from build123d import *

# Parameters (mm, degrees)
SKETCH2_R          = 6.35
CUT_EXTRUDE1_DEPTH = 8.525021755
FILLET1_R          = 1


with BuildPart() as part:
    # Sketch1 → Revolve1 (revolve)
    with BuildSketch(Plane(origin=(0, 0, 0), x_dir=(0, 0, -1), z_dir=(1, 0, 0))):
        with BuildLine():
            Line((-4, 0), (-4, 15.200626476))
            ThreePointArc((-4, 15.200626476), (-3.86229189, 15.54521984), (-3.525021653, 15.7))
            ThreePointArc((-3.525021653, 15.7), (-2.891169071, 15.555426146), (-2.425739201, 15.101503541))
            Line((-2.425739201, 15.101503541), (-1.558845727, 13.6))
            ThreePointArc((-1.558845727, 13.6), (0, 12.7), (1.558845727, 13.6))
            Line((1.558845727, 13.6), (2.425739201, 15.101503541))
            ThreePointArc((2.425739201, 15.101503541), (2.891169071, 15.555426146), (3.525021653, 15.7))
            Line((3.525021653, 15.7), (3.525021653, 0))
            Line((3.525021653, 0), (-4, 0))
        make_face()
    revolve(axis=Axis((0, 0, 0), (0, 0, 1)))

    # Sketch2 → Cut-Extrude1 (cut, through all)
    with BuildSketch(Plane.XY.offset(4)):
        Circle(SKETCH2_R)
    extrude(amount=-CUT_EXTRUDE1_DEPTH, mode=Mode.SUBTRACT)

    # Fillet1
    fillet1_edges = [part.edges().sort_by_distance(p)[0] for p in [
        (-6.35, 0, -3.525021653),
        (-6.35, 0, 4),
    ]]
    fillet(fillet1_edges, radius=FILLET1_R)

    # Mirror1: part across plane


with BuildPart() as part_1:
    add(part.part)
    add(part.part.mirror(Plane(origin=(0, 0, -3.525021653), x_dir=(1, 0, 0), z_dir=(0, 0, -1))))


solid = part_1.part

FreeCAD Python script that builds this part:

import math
import FreeCAD as App
import Part
import Sketcher
from FreeCAD import Vector
Q = App.Units.Quantity


def edges_at(feature, points):
    """Names of the edges that pass closest to the given points."""
    edges = feature.Shape.Edges
    near = lambda p: min(range(len(edges)), key=lambda i: edges[i].distToShape(Part.Vertex(*p))[0])
    return sorted({f"Edge{near(p) + 1}" for p in points})

doc = App.newDocument("Part")
body = doc.addObject("PartDesign::Body", "Body")

# Sketch on YZ plane
sketch1 = body.newObject("Sketcher::SketchObject", "Sketch")
sketch1.AttachmentSupport = (doc.getObject("YZ_Plane"), [""])
sketch1.MapMode = "FlatFace"
sketch1.addGeometry([
    Part.LineSegment(Vector(15.200626, 4, 0), Vector(0, 4, 0)),  # 0
    Part.LineSegment(Vector(0, 4, 0), Vector(0, -3.525022, 0)),  # 1
    Part.LineSegment(Vector(0, -3.525022, 0), Vector(15.7, -3.525022, 0)),  # 2
    Part.ArcOfCircle(Part.Circle(Vector(14.501504, -3.46497, 0), Vector(0, 0, 1), 1.2), math.radians(-2.868468), math.radians(60)),  # 3
    Part.LineSegment(Vector(15.101504, -2.425739, 0), Vector(13.6, -1.558846, 0)),  # 4
    Part.ArcOfCircle(Part.Circle(Vector(14.5, 0, 0), Vector(0, 0, 1), 1.8), math.radians(120), math.radians(240)),  # 5
    Part.LineSegment(Vector(13.6, 1.558846, 0), Vector(15.101504, 2.425739, 0)),  # 6
    Part.ArcOfCircle(Part.Circle(Vector(14.501504, 3.46497, 0), Vector(0, 0, 1), 1.2), math.radians(-60), math.radians(2.868468)),  # 7
    Part.ArcOfCircle(Part.Circle(Vector(15.200626, 3.5, 0), Vector(0, 0, 1), 0.5), math.radians(2.868468), math.radians(90)),  # 8
], False)
sketch1.addConstraint([
    Sketcher.Constraint("Coincident", 0, 2, 1, 1),
    Sketcher.Constraint("Coincident", 1, 2, 2, 1),
    Sketcher.Constraint("Coincident", 2, 2, 3, 1),
    Sketcher.Constraint("Tangent", 3, 2, 4, 1),
    Sketcher.Constraint("Tangent", 4, 2, 5, 2),
    Sketcher.Constraint("Tangent", 5, 1, 6, 1),
    Sketcher.Constraint("Tangent", 6, 2, 7, 1),
    Sketcher.Constraint("Tangent", 7, 2, 8, 1),
    Sketcher.Constraint("Tangent", 8, 2, 0, 1),
    Sketcher.Constraint("Horizontal", 0),
    Sketcher.Constraint("Vertical", 1),
    Sketcher.Constraint("Horizontal", 2),
    Sketcher.Constraint("Equal", 3, 7),
    Sketcher.Constraint("Symmetric", 3, 3, 7, 3, -1),
    Sketcher.Constraint("PointOnObject", 5, 3, -1),
    Sketcher.Constraint("PointOnObject", 0, 2, -2),
    Sketcher.Constraint("Vertical", 2, 2, 7, 2),
    Sketcher.Constraint("Radius", 3, 1.2),
    Sketcher.Constraint("Radius", 5, 1.8),
    Sketcher.Constraint("Radius", 8, 0.5),
    Sketcher.Constraint("Angle", 4, Q("150 deg")),
    Sketcher.Constraint("DistanceX", 2, 1, 2, 2, 15.7),
    Sketcher.Constraint("DistanceY", -1, 1, 0, 2, 4.0),
    Sketcher.Constraint("DistanceX", -1, 1, 5, 3, 14.5),
])
revolution = body.newObject("PartDesign::Revolution", "Revolution")
revolution.Profile = sketch1
revolution.ReferenceAxis = (sketch1, ["V_Axis"])
revolution.Angle = 360

# Sketch on XY plane
sketch2 = body.newObject("Sketcher::SketchObject", "Sketch001")
sketch2.AttachmentSupport = (doc.getObject("XY_Plane"), [""])
sketch2.MapMode = "FlatFace"
sketch2.AttachmentOffset = App.Placement(Vector(0, 0, 4), App.Rotation())
sketch2.addGeometry(Part.Circle(Vector(0, 0, 0), Vector(0, 0, 1), 6.35), False)
sketch2.addConstraint([
    Sketcher.Constraint("Coincident", 0, 3, -1, 1),
    Sketcher.Constraint("Diameter", 0, 12.7),
])
pocket1 = body.newObject("PartDesign::Pocket", "Pocket")
pocket1.Profile = sketch2
pocket1.Type = "ThroughAll"
doc.recompute()

fillet = body.newObject("PartDesign::Fillet", "Fillet")
fillet.Base = (pocket1, edges_at(pocket1, [(-6.35, 0, -3.525), (-6.35, 0, 4)]))
fillet.Radius = 1
body2 = doc.addObject("PartDesign::Body", "Body001")
doc.recompute()

body2.BaseFeature = body
doc.recompute()

mirroring = doc.addObject("Part::Mirroring", "Mirroring")
mirroring.Source = body
mirroring.Base = Vector(0, 0, -3.525022)
mirroring.Normal = Vector(0, 0, -1)
body3 = doc.addObject("PartDesign::Body", "Body002")
body3.BaseFeature = mirroring
boolean = body2.newObject("PartDesign::Boolean", "Boolean")
boolean.Type = "Fuse"
boolean.addObjects([body3])
doc.recompute()
mirroring.Visibility = False

doc.recompute()
